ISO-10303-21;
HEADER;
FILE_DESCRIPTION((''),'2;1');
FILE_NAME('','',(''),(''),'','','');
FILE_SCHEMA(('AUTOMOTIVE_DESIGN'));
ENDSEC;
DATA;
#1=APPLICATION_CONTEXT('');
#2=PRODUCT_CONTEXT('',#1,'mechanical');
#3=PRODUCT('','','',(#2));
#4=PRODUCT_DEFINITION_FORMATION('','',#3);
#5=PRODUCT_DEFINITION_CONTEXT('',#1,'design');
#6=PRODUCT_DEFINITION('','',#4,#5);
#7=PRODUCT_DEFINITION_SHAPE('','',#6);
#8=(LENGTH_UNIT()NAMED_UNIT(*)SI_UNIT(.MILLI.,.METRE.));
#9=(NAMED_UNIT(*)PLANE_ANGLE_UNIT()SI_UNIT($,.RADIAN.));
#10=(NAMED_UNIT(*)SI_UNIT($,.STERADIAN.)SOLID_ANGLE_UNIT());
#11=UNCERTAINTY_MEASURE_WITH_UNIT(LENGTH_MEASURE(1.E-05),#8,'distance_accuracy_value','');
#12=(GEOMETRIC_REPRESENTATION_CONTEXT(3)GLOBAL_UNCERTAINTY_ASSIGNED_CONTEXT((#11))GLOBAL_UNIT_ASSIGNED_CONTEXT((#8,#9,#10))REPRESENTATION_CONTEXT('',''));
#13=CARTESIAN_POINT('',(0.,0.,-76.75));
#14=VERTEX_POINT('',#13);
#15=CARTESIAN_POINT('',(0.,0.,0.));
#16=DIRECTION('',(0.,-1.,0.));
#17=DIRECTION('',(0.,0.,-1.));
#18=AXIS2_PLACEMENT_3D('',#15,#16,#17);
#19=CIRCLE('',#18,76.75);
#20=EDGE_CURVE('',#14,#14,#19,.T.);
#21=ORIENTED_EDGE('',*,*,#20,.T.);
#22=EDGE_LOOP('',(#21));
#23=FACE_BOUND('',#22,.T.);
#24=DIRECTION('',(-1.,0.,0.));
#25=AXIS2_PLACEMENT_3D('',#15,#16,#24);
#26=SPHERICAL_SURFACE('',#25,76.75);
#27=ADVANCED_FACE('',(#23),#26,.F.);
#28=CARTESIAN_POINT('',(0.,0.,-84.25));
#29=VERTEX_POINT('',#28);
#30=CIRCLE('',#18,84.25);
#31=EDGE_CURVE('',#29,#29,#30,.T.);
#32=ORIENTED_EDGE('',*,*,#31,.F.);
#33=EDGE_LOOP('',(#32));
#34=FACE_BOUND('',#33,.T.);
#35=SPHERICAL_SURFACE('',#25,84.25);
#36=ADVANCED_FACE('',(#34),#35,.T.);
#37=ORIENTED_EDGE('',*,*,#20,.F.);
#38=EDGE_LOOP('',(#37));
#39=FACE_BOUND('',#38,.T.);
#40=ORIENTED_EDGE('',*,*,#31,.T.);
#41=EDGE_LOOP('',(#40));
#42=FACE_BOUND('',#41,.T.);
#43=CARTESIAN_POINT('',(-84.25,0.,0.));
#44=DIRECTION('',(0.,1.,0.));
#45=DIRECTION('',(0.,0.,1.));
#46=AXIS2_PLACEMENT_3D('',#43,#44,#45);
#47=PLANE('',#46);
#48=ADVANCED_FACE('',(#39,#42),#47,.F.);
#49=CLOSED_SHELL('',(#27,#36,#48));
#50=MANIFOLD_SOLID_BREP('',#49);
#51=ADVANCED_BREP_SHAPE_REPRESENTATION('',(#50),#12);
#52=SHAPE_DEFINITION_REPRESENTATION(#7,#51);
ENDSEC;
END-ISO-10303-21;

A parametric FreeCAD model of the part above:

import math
import FreeCAD as App
import Part
import Sketcher
Q = App.Units.Quantity

doc = App.newDocument("Part")
body = doc.addObject("PartDesign::Body", "Body")

# Sketch on XY plane
sketch1 = body.newObject("Sketcher::SketchObject", "Sketch")
sketch1.AttachmentSupport = (doc.getObject("XY_Plane"), [""])
sketch1.MapMode = "FlatFace"
sketch1.addGeometry([
    Part.LineSegment(App.Vector(0, 77, 0), App.Vector(0, 84, 0)),
    Part.ArcOfCircle(Part.Circle(App.Vector(0, 0, 0), App.Vector(0, 0, 1), 84), math.radians(90), math.radians(180)),
    Part.LineSegment(App.Vector(-84, 0, 0), App.Vector(-77, 0, 0)),
    Part.ArcOfCircle(Part.Circle(App.Vector(0, 0, 0), App.Vector(0, 0, 1), 77), math.radians(90), math.radians(180)),
], False)
sketch1.addConstraint([
    Sketcher.Constraint("Coincident", 0, 2, 1, 1),
    Sketcher.Constraint("Coincident", 1, 2, 2, 1),
    Sketcher.Constraint("Coincident", 2, 2, 3, 2),
    Sketcher.Constraint("Coincident", 3, 1, 0, 1),
    Sketcher.Constraint("Vertical", 0),
    Sketcher.Constraint("Horizontal", 2),
    Sketcher.Constraint("Coincident", 1, 3, -1, 1),
    Sketcher.Constraint("Coincident", 3, 3, -1, 1),
    Sketcher.Constraint("PointOnObject", 0, 2, -2),
    Sketcher.Constraint("PointOnObject", 1, 2, -1),
    Sketcher.Constraint("Radius", 1, Q("84.25 mm")),
    Sketcher.Constraint("Radius", 3, Q("76.75 mm")),
])
revolution = body.newObject("PartDesign::Revolution", "Revolution")
revolution.Profile = sketch1
revolution.ReferenceAxis = (sketch1, ["V_Axis"])
revolution.Angle = 360

doc.recompute()
